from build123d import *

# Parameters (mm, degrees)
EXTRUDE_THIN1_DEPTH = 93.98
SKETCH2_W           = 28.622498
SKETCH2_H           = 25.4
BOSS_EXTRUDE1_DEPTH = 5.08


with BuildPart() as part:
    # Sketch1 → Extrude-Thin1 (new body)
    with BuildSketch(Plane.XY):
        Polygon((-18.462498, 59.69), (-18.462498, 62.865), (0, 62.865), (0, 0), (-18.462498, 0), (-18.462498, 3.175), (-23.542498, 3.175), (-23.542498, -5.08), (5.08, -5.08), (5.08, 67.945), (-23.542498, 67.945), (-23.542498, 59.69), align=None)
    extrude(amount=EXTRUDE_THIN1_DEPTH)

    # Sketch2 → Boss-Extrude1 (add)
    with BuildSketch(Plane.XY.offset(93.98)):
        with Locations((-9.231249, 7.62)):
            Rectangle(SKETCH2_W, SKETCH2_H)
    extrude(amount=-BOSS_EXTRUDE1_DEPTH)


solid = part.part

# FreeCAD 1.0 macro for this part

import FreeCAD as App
import Part
import Sketcher
Q = App.Units.Quantity


def add_polygon(sketch, points):
    """Adds a closed chain of lines whose ends are joined by coincident constraints."""
    first, n = sketch.GeometryCount, len(points)
    for a, b in zip(points, points[1:] + points[:1]):
        sketch.addGeometry(Part.LineSegment(App.Vector(*a, 0), App.Vector(*b, 0)), False)
    for i in range(n):
        sketch.addConstraint(Sketcher.Constraint("Coincident", first + i, 2, first + (i + 1) % n, 1))

doc = App.newDocument("Part")
params = doc.addObject("Spreadsheet::Sheet", "Params")
for row, (alias, value) in enumerate([
    ("sketch1_width", "0.2 in"),
    ("sketch1_height", "0.125 in"),
    ("sketch1_height2", "2.475 in"),
    ("pad1_length", "3.7 in"),
    ("sketch2_height", "1 in"),
    ("pad2_length", "0.2 in"),
], start=1):
    params.set(f"A{row}", alias)
    params.set(f"B{row}", "=" + value)
    params.setAlias(f"B{row}", alias)

body = doc.addObject("PartDesign::Body", "Body")

sketch1 = body.newObject("Sketcher::SketchObject", "Sketch")
sketch1.AttachmentSupport = (doc.getObject("XY_Plane"), [""])
sketch1.MapMode = "FlatFace"
add_polygon(sketch1, [(-18.5, 59.7), (-18.5, 62.9), (0, 62.9), (0, 0), (-18.5, 0), (-18.5, 3.2), (-23.5, 3.2), (-23.5, -5.1), (5.1, -5.1), (5.1, 67.9), (-23.5, 67.9), (-23.5, 59.7)])
sketch1.addConstraint([
    Sketcher.Constraint("Vertical", 0),
    Sketcher.Constraint("Horizontal", 1),
    Sketcher.Constraint("Vertical", 2),
    Sketcher.Constraint("Horizontal", 3),
    Sketcher.Constraint("Vertical", 4),
    Sketcher.Constraint("Horizontal", 5),
    Sketcher.Constraint("Vertical", 6),
    Sketcher.Constraint("Horizontal", 7),
    Sketcher.Constraint("Vertical", 8),
    Sketcher.Constraint("Horizontal", 9),
    Sketcher.Constraint("Vertical", 10),
    Sketcher.Constraint("Horizontal", 11),
    Sketcher.Constraint("Coincident", 2, 2, -1, 1),
    Sketcher.Constraint("Vertical", 0, 2, 3, 2),
    Sketcher.Constraint("Vertical", 6, 2, 9, 2),
    Sketcher.Constraint("Equal", 0, 4),
    Sketcher.Constraint("Equal", 6, 10),
    Sketcher.Constraint("DistanceX", 5, 2, 5, 1, Q("0.2 in")),
    Sketcher.Constraint("DistanceY", 6, 2, -1, 1, Q("0.2 in")),
    Sketcher.Constraint("DistanceX", -1, 1, 7, 2, Q("0.2 in")),
    Sketcher.Constraint("DistanceY", 0, 1, 0, 2, Q("0.125 in")),
    Sketcher.Constraint("DistanceY", 2, 2, 2, 1, Q("2.475 in")),
    Sketcher.Constraint("DistanceX", 1, 1, 1, 2, 18.462498),
])
sketch1.setExpression("Constraints[29]", "Params.sketch1_width")
sketch1.setExpression("Constraints[32]", "Params.sketch1_height")
sketch1.setExpression("Constraints[33]", "Params.sketch1_height2")
pad1 = body.newObject("PartDesign::Pad", "Pad")
pad1.Profile = sketch1
pad1.setExpression("Length", "Params.pad1_length")

sketch2 = body.newObject("Sketcher::SketchObject", "Sketch001")
sketch2.AttachmentSupport = (doc.getObject("XY_Plane"), [""])
sketch2.MapMode = "FlatFace"
sketch2.AttachmentOffset = App.Placement(App.Vector(0, 0, 3.7 * 25.4), App.Rotation())
add_polygon(sketch2, [(-24, 20), (-24, -5), (5, -5), (5, 20)])
sketch2.addConstraint([
    Sketcher.Constraint("Vertical", 0),
    Sketcher.Constraint("Horizontal", 1),
    Sketcher.Constraint("Vertical", 2),
    Sketcher.Constraint("Horizontal", 3),
    Sketcher.Constraint("DistanceY", 0, 2, 0, 1, Q("1 in")),
    Sketcher.Constraint("DistanceY", 0, 2, -1, 1, Q("0.2 in")),
    Sketcher.Constraint("DistanceX", -1, 1, 1, 2, Q("0.2 in")),
    Sketcher.Constraint("DistanceX", 1, 1, 1, 2, 28.622498),
])
sketch2.setExpression("Constraints[8]", "Params.sketch2_height")
pad2 = body.newObject("PartDesign::Pad", "Pad001")
pad2.Profile = sketch2
pad2.setExpression("Length", "Params.pad2_length")
pad2.Reversed = True

doc.recompute()
